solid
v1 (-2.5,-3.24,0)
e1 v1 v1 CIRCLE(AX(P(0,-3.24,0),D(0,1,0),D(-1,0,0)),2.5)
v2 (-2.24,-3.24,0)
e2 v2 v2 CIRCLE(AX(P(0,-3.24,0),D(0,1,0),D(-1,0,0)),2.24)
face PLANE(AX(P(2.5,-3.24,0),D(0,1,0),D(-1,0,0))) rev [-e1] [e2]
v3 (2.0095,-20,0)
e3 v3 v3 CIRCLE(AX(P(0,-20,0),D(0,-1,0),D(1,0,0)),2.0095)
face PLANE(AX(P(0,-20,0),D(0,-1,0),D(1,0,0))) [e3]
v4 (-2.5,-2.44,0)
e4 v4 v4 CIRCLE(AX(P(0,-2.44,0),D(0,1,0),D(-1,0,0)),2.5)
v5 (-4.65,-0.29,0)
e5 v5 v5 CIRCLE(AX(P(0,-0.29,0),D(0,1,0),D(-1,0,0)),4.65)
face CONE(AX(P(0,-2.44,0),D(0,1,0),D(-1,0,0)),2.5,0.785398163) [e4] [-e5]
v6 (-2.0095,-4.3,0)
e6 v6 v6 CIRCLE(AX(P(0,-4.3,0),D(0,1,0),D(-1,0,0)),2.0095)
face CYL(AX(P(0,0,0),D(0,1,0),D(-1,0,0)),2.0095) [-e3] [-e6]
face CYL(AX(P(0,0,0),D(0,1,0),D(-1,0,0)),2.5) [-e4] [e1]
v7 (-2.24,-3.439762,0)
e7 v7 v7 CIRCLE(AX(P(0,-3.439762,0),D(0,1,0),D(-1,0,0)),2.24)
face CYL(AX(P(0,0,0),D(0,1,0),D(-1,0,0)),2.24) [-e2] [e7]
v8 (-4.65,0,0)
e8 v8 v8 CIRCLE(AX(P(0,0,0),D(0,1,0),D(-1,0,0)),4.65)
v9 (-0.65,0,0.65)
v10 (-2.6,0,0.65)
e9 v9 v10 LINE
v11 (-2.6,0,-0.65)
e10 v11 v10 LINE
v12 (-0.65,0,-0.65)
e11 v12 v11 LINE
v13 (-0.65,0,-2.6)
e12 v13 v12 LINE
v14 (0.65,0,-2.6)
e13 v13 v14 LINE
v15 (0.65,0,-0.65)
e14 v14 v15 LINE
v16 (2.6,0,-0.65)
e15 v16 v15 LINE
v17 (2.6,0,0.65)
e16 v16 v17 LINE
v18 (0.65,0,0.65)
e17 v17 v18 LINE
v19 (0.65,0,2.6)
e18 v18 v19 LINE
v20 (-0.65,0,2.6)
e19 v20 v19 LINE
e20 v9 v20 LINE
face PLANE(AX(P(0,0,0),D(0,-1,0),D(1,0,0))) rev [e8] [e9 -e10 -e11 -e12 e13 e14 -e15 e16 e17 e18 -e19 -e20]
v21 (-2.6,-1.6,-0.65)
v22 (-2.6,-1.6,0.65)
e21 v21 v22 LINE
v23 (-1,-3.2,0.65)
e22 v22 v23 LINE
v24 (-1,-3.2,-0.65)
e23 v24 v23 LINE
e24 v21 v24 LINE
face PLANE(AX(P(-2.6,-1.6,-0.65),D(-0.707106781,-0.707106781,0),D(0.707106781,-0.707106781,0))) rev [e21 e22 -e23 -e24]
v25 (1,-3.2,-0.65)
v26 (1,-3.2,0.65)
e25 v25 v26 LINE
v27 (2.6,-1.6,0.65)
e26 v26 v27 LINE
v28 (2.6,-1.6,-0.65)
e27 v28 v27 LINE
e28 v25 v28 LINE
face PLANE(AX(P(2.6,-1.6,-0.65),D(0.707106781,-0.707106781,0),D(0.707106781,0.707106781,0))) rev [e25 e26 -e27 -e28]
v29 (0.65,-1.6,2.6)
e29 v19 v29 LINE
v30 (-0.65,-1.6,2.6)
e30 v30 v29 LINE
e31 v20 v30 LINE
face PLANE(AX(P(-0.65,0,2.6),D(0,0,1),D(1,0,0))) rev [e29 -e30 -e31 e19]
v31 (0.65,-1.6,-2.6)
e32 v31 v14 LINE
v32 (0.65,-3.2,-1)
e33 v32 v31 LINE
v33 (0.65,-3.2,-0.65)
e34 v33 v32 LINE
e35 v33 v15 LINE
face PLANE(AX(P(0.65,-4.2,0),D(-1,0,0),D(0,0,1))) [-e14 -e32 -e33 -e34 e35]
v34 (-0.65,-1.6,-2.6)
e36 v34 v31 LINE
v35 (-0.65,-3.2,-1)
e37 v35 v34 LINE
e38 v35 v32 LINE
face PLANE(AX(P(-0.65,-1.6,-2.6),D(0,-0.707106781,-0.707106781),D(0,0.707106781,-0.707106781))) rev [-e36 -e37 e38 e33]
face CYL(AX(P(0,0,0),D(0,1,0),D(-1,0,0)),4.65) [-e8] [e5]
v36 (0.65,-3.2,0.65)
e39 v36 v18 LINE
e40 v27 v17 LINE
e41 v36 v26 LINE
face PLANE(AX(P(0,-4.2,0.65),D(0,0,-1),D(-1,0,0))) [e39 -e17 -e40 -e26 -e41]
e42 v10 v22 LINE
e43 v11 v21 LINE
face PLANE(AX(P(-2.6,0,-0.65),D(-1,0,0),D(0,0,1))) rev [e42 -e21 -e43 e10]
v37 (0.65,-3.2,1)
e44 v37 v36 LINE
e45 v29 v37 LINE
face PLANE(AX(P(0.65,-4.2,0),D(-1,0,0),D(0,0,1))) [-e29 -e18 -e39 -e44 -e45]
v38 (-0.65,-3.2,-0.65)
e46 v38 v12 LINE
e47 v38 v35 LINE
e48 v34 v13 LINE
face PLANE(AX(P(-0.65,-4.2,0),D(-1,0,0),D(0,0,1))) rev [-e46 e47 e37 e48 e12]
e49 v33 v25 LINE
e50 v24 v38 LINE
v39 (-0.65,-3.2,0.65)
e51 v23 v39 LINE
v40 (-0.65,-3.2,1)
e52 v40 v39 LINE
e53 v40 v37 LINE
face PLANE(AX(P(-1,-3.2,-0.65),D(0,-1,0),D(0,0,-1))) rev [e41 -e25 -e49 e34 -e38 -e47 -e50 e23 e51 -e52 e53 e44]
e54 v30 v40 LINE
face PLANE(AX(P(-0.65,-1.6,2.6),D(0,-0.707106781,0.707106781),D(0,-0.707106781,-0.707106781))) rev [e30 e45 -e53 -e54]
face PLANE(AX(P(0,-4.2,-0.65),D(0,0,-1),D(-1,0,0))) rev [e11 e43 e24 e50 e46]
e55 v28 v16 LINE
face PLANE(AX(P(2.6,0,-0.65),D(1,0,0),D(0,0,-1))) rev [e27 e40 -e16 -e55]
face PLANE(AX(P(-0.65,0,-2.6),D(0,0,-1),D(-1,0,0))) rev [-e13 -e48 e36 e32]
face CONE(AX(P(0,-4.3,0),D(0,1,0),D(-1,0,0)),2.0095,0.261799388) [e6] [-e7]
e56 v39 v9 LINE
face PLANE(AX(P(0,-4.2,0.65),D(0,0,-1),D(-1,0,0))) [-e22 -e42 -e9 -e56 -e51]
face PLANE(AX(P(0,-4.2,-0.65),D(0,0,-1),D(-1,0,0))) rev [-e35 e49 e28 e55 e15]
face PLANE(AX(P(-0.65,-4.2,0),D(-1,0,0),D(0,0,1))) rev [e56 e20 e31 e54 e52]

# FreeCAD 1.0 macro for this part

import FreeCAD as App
import Part
import Sketcher
from FreeCAD import Vector
Q = App.Units.Quantity


def add_polygon(sketch, points):
    """Adds a closed chain of lines whose ends are joined by coincident constraints."""
    first, n = sketch.GeometryCount, len(points)
    for a, b in zip(points, points[1:] + points[:1]):
        sketch.addGeometry(Part.LineSegment(App.Vector(*a, 0), App.Vector(*b, 0)), False)
    for i in range(n):
        sketch.addConstraint(Sketcher.Constraint("Coincident", first + i, 2, first + (i + 1) % n, 1))

doc = App.newDocument("Part")
params = doc.addObject("Spreadsheet::Sheet", "Params")
for row, (alias, value) in enumerate([
    ("sketch1_height", "16 mm"),
    ("sketch1_height2", "11.7 mm"),
    ("sketch1_height3", "0.8 mm"),
    ("sketch1_width", "4.65 mm"),
    ("sketch1_width2", "0.26 mm"),
    ("revolution_angle", "360 deg"),
    ("sketch2_width", "2 mm"),
    ("sketch2_width2", "5.2 mm"),
    ("sketch2_height", "1.6 mm"),
    ("pocket1_length", "0.65 mm"),
    ("pocket1_length2", "0.65 mm"),
    ("sketch3_height", "2 mm"),
    ("sketch3_width", "1.6 mm"),
    ("sketch3_height2", "5.2 mm"),
    ("pocket2_length", "0.65 mm"),
    ("pocket2_length2", "0.65 mm"),
    ("pad1_length", "4 mm"),
], start=1):
    params.set(f"A{row}", alias)
    params.set(f"B{row}", "=" + value)
    params.setAlias(f"B{row}", alias)

body = doc.addObject("PartDesign::Body", "Body")

sketch1 = body.newObject("Sketcher::SketchObject", "Sketch")
sketch1.AttachmentSupport = (doc.getObject("XY_Plane"), [""])
sketch1.MapMode = "FlatFace"
add_polygon(sketch1, [(4.65, 0), (0, 0), (0, -16), (2.01, -16), (2.01, -4.3), (2.24, -3.44), (2.24, -3.24), (2.5, -3.24), (2.5, -2.44), (4.65, -0.29)])
sketch1.addConstraint([
    Sketcher.Constraint("Horizontal", 0),
    Sketcher.Constraint("Vertical", 1),
    Sketcher.Constraint("Horizontal", 2),
    Sketcher.Constraint("Vertical", 3),
    Sketcher.Constraint("Vertical", 5),
    Sketcher.Constraint("Horizontal", 6),
    Sketcher.Constraint("Vertical", 7),
    Sketcher.Constraint("Vertical", 9),
    Sketcher.Constraint("Coincident", 0, 2, -1, 1),
    Sketcher.Constraint("DistanceY", 1, 2, 1, 1, 16.0),
    Sketcher.Constraint("Angle", 4, Q("75 deg")),
    Sketcher.Constraint("Angle", 8, Q("45 deg")),
    Sketcher.Constraint("DistanceY", 3, 1, 3, 2, 11.7),
    Sketcher.Constraint("DistanceY", 7, 1, 7, 2, 0.8),
    Sketcher.Constraint("DistanceX", 0, 2, 0, 1, 4.65),
    Sketcher.Constraint("DistanceX", 6, 1, 6, 2, 0.26),
    Sketcher.Constraint("DistanceY", 9, 1, 9, 2, 0.29),
    Sketcher.Constraint("DistanceX", -1, 1, 6, 2, 2.5),
    Sketcher.Constraint("DistanceX", 2, 1, 2, 2, 2.0095),
])
sketch1.setExpression("Constraints[19]", "Params.sketch1_height")
sketch1.setExpression("Constraints[22]", "Params.sketch1_height2")
sketch1.setExpression("Constraints[23]", "Params.sketch1_height3")
sketch1.setExpression("Constraints[24]", "Params.sketch1_width")
sketch1.setExpression("Constraints[25]", "Params.sketch1_width2")
revolution = body.newObject("PartDesign::Revolution", "Revolution")
revolution.Profile = sketch1
revolution.ReferenceAxis = (sketch1, ["V_Axis"])
revolution.setExpression("Angle", "Params.revolution_angle")

sketch2 = body.newObject("Sketcher::SketchObject", "Sketch001")
sketch2.AttachmentSupport = (doc.getObject("XY_Plane"), [""])
sketch2.MapMode = "FlatFace"
add_polygon(sketch2, [(-1, -3.2), (1, -3.2), (2.6, -1.6), (2.6, 0), (-2.6, 0), (-2.6, -1.6)])
sketch2.addConstraint([
    Sketcher.Constraint("Horizontal", 0),
    Sketcher.Constraint("Vertical", 2),
    Sketcher.Constraint("Horizontal", 3),
    Sketcher.Constraint("Vertical", 4),
    Sketcher.Constraint("Symmetric", 2, 2, 3, 2, -1, 1),
    Sketcher.Constraint("Perpendicular", 1, 5),
    Sketcher.Constraint("Horizontal", 1, 2, 4, 2),
    Sketcher.Constraint("Equal", 1, 5),
    Sketcher.Constraint("DistanceX", 0, 1, 0, 2, 2.0),
    Sketcher.Constraint("DistanceX", 3, 2, 3, 1, 5.2),
    Sketcher.Constraint("DistanceY", 2, 1, 2, 2, 1.6),
])
sketch2.setExpression("Constraints[14]", "Params.sketch2_width")
sketch2.setExpression("Constraints[15]", "Params.sketch2_width2")
sketch2.setExpression("Constraints[16]", "Params.sketch2_height")
pocket1 = body.newObject("PartDesign::Pocket", "Pocket")
pocket1.Profile = sketch2
pocket1.Type = "TwoLengths"
pocket1.setExpression("Length", "Params.pocket1_length")
pocket1.setExpression("Length2", "Params.pocket1_length2")
pocket1.Reversed = True

sketch3 = body.newObject("Sketcher::SketchObject", "Sketch002")
sketch3.AttachmentSupport = (doc.getObject("YZ_Plane"), [""])
sketch3.MapMode = "FlatFace"
add_polygon(sketch3, [(-3.2, 1), (-3.2, -1), (-1.6, -2.6), (0, -2.6), (0, 2.6), (-1.6, 2.6)])
sketch3.addConstraint([
    Sketcher.Constraint("Vertical", 0),
    Sketcher.Constraint("Horizontal", 2),
    Sketcher.Constraint("Vertical", 3),
    Sketcher.Constraint("Horizontal", 4),
    Sketcher.Constraint("Symmetric", 2, 2, 3, 2, -1, 1),
    Sketcher.Constraint("Perpendicular", 1, 5),
    Sketcher.Constraint("Vertical", 1, 2, 4, 2),
    Sketcher.Constraint("Equal", 1, 5),
    Sketcher.Constraint("DistanceY", 0, 2, 0, 1, 2.0),
    Sketcher.Constraint("DistanceX", 2, 1, 2, 2, 1.6),
    Sketcher.Constraint("DistanceY", 3, 1, 3, 2, 5.2),
])
sketch3.setExpression("Constraints[14]", "Params.sketch3_height")
sketch3.setExpression("Constraints[15]", "Params.sketch3_width")
sketch3.setExpression("Constraints[16]", "Params.sketch3_height2")
pocket2 = body.newObject("PartDesign::Pocket", "Pocket001")
pocket2.Profile = sketch3
pocket2.Type = "TwoLengths"
pocket2.setExpression("Length", "Params.pocket2_length")
pocket2.setExpression("Length2", "Params.pocket2_length2")
pocket2.Reversed = True

sketch4 = body.newObject("Sketcher::SketchObject", "Sketch003")
sketch4.AttachmentSupport = (doc.getObject("XZ_Plane"), [""])
sketch4.MapMode = "FlatFace"
sketch4.AttachmentOffset = App.Placement(Vector(0, 0, 20), App.Rotation())
sketch4.addGeometry(Part.Circle(Vector(0, 0, 0), Vector(0, 0, 1), 2), False)
sketch4.addConstraint([
    Sketcher.Constraint("Coincident", 0, 3, -1, 1),
    Sketcher.Constraint("Diameter", 0, 4.019),
])
pad1 = body.newObject("PartDesign::Pad", "Pad")
pad1.Profile = sketch4
pad1.setExpression("Length", "Params.pad1_length")
pad1.Reversed = True

doc.recompute()
